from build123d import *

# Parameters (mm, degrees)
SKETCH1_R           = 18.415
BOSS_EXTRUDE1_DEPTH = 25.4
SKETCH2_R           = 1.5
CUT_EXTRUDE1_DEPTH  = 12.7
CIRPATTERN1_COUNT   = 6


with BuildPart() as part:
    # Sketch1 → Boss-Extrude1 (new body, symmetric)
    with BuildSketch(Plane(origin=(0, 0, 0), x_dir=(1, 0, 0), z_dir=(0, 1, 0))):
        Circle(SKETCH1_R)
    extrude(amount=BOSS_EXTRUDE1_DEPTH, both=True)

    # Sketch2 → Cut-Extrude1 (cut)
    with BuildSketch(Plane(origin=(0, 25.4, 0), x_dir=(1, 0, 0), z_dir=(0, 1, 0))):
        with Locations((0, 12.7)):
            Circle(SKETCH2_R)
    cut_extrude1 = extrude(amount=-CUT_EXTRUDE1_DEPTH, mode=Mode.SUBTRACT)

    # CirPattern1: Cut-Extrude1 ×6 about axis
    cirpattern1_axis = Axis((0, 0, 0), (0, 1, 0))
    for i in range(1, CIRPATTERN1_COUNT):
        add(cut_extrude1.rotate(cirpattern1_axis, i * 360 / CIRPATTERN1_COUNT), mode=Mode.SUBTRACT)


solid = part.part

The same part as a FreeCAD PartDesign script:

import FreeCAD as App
import Part
import Sketcher
from FreeCAD import Vector
Q = App.Units.Quantity

doc = App.newDocument("Part")
body = doc.addObject("PartDesign::Body", "Body")

# Sketch on XZ plane
sketch1 = body.newObject("Sketcher::SketchObject", "Sketch")
sketch1.AttachmentSupport = (doc.getObject("XZ_Plane"), [""])
sketch1.MapMode = "FlatFace"
sketch1.addGeometry(Part.Circle(Vector(0, 0, 0), Vector(0, 0, 1), 18), False)
sketch1.addConstraint([
    Sketcher.Constraint("Coincident", 0, 3, -1, 1),
    Sketcher.Constraint("Diameter", 0, Q("1.45 in")),
])
pad1 = body.newObject("PartDesign::Pad", "Pad")
pad1.Profile = sketch1
pad1.Length = Q("2 in")
pad1.Midplane = True

# Sketch on XZ plane
sketch2 = body.newObject("Sketcher::SketchObject", "Sketch001")
sketch2.AttachmentSupport = (doc.getObject("XZ_Plane"), [""])
sketch2.MapMode = "FlatFace"
sketch2.AttachmentOffset = App.Placement(Vector(0, 0, -1 * 25.4), App.Rotation())
sketch2.addGeometry(Part.Circle(Vector(0, -12.7, 0), Vector(0, 0, 1), 1.5), False)
sketch2.addConstraint([
    Sketcher.Constraint("PointOnObject", 0, 3, -2),
    Sketcher.Constraint("DistanceY", 0, 3, -1, 1, Q("0.5 in")),
    Sketcher.Constraint("Diameter", 0, 3.0),
])
pocket1 = body.newObject("PartDesign::Pocket", "Pocket")
pocket1.Profile = sketch2
pocket1.Length = Q("0.5 in")
pocket1.Reversed = True
doc.recompute()

polarpattern = body.newObject("PartDesign::PolarPattern", "PolarPattern")
polarpattern.Originals = [pocket1]
polarpattern.Axis = (doc.getObject("Y_Axis"), [""])
polarpattern.Angle = 360
polarpattern.Occurrences = 6
body.Tip = polarpattern

doc.recompute()
